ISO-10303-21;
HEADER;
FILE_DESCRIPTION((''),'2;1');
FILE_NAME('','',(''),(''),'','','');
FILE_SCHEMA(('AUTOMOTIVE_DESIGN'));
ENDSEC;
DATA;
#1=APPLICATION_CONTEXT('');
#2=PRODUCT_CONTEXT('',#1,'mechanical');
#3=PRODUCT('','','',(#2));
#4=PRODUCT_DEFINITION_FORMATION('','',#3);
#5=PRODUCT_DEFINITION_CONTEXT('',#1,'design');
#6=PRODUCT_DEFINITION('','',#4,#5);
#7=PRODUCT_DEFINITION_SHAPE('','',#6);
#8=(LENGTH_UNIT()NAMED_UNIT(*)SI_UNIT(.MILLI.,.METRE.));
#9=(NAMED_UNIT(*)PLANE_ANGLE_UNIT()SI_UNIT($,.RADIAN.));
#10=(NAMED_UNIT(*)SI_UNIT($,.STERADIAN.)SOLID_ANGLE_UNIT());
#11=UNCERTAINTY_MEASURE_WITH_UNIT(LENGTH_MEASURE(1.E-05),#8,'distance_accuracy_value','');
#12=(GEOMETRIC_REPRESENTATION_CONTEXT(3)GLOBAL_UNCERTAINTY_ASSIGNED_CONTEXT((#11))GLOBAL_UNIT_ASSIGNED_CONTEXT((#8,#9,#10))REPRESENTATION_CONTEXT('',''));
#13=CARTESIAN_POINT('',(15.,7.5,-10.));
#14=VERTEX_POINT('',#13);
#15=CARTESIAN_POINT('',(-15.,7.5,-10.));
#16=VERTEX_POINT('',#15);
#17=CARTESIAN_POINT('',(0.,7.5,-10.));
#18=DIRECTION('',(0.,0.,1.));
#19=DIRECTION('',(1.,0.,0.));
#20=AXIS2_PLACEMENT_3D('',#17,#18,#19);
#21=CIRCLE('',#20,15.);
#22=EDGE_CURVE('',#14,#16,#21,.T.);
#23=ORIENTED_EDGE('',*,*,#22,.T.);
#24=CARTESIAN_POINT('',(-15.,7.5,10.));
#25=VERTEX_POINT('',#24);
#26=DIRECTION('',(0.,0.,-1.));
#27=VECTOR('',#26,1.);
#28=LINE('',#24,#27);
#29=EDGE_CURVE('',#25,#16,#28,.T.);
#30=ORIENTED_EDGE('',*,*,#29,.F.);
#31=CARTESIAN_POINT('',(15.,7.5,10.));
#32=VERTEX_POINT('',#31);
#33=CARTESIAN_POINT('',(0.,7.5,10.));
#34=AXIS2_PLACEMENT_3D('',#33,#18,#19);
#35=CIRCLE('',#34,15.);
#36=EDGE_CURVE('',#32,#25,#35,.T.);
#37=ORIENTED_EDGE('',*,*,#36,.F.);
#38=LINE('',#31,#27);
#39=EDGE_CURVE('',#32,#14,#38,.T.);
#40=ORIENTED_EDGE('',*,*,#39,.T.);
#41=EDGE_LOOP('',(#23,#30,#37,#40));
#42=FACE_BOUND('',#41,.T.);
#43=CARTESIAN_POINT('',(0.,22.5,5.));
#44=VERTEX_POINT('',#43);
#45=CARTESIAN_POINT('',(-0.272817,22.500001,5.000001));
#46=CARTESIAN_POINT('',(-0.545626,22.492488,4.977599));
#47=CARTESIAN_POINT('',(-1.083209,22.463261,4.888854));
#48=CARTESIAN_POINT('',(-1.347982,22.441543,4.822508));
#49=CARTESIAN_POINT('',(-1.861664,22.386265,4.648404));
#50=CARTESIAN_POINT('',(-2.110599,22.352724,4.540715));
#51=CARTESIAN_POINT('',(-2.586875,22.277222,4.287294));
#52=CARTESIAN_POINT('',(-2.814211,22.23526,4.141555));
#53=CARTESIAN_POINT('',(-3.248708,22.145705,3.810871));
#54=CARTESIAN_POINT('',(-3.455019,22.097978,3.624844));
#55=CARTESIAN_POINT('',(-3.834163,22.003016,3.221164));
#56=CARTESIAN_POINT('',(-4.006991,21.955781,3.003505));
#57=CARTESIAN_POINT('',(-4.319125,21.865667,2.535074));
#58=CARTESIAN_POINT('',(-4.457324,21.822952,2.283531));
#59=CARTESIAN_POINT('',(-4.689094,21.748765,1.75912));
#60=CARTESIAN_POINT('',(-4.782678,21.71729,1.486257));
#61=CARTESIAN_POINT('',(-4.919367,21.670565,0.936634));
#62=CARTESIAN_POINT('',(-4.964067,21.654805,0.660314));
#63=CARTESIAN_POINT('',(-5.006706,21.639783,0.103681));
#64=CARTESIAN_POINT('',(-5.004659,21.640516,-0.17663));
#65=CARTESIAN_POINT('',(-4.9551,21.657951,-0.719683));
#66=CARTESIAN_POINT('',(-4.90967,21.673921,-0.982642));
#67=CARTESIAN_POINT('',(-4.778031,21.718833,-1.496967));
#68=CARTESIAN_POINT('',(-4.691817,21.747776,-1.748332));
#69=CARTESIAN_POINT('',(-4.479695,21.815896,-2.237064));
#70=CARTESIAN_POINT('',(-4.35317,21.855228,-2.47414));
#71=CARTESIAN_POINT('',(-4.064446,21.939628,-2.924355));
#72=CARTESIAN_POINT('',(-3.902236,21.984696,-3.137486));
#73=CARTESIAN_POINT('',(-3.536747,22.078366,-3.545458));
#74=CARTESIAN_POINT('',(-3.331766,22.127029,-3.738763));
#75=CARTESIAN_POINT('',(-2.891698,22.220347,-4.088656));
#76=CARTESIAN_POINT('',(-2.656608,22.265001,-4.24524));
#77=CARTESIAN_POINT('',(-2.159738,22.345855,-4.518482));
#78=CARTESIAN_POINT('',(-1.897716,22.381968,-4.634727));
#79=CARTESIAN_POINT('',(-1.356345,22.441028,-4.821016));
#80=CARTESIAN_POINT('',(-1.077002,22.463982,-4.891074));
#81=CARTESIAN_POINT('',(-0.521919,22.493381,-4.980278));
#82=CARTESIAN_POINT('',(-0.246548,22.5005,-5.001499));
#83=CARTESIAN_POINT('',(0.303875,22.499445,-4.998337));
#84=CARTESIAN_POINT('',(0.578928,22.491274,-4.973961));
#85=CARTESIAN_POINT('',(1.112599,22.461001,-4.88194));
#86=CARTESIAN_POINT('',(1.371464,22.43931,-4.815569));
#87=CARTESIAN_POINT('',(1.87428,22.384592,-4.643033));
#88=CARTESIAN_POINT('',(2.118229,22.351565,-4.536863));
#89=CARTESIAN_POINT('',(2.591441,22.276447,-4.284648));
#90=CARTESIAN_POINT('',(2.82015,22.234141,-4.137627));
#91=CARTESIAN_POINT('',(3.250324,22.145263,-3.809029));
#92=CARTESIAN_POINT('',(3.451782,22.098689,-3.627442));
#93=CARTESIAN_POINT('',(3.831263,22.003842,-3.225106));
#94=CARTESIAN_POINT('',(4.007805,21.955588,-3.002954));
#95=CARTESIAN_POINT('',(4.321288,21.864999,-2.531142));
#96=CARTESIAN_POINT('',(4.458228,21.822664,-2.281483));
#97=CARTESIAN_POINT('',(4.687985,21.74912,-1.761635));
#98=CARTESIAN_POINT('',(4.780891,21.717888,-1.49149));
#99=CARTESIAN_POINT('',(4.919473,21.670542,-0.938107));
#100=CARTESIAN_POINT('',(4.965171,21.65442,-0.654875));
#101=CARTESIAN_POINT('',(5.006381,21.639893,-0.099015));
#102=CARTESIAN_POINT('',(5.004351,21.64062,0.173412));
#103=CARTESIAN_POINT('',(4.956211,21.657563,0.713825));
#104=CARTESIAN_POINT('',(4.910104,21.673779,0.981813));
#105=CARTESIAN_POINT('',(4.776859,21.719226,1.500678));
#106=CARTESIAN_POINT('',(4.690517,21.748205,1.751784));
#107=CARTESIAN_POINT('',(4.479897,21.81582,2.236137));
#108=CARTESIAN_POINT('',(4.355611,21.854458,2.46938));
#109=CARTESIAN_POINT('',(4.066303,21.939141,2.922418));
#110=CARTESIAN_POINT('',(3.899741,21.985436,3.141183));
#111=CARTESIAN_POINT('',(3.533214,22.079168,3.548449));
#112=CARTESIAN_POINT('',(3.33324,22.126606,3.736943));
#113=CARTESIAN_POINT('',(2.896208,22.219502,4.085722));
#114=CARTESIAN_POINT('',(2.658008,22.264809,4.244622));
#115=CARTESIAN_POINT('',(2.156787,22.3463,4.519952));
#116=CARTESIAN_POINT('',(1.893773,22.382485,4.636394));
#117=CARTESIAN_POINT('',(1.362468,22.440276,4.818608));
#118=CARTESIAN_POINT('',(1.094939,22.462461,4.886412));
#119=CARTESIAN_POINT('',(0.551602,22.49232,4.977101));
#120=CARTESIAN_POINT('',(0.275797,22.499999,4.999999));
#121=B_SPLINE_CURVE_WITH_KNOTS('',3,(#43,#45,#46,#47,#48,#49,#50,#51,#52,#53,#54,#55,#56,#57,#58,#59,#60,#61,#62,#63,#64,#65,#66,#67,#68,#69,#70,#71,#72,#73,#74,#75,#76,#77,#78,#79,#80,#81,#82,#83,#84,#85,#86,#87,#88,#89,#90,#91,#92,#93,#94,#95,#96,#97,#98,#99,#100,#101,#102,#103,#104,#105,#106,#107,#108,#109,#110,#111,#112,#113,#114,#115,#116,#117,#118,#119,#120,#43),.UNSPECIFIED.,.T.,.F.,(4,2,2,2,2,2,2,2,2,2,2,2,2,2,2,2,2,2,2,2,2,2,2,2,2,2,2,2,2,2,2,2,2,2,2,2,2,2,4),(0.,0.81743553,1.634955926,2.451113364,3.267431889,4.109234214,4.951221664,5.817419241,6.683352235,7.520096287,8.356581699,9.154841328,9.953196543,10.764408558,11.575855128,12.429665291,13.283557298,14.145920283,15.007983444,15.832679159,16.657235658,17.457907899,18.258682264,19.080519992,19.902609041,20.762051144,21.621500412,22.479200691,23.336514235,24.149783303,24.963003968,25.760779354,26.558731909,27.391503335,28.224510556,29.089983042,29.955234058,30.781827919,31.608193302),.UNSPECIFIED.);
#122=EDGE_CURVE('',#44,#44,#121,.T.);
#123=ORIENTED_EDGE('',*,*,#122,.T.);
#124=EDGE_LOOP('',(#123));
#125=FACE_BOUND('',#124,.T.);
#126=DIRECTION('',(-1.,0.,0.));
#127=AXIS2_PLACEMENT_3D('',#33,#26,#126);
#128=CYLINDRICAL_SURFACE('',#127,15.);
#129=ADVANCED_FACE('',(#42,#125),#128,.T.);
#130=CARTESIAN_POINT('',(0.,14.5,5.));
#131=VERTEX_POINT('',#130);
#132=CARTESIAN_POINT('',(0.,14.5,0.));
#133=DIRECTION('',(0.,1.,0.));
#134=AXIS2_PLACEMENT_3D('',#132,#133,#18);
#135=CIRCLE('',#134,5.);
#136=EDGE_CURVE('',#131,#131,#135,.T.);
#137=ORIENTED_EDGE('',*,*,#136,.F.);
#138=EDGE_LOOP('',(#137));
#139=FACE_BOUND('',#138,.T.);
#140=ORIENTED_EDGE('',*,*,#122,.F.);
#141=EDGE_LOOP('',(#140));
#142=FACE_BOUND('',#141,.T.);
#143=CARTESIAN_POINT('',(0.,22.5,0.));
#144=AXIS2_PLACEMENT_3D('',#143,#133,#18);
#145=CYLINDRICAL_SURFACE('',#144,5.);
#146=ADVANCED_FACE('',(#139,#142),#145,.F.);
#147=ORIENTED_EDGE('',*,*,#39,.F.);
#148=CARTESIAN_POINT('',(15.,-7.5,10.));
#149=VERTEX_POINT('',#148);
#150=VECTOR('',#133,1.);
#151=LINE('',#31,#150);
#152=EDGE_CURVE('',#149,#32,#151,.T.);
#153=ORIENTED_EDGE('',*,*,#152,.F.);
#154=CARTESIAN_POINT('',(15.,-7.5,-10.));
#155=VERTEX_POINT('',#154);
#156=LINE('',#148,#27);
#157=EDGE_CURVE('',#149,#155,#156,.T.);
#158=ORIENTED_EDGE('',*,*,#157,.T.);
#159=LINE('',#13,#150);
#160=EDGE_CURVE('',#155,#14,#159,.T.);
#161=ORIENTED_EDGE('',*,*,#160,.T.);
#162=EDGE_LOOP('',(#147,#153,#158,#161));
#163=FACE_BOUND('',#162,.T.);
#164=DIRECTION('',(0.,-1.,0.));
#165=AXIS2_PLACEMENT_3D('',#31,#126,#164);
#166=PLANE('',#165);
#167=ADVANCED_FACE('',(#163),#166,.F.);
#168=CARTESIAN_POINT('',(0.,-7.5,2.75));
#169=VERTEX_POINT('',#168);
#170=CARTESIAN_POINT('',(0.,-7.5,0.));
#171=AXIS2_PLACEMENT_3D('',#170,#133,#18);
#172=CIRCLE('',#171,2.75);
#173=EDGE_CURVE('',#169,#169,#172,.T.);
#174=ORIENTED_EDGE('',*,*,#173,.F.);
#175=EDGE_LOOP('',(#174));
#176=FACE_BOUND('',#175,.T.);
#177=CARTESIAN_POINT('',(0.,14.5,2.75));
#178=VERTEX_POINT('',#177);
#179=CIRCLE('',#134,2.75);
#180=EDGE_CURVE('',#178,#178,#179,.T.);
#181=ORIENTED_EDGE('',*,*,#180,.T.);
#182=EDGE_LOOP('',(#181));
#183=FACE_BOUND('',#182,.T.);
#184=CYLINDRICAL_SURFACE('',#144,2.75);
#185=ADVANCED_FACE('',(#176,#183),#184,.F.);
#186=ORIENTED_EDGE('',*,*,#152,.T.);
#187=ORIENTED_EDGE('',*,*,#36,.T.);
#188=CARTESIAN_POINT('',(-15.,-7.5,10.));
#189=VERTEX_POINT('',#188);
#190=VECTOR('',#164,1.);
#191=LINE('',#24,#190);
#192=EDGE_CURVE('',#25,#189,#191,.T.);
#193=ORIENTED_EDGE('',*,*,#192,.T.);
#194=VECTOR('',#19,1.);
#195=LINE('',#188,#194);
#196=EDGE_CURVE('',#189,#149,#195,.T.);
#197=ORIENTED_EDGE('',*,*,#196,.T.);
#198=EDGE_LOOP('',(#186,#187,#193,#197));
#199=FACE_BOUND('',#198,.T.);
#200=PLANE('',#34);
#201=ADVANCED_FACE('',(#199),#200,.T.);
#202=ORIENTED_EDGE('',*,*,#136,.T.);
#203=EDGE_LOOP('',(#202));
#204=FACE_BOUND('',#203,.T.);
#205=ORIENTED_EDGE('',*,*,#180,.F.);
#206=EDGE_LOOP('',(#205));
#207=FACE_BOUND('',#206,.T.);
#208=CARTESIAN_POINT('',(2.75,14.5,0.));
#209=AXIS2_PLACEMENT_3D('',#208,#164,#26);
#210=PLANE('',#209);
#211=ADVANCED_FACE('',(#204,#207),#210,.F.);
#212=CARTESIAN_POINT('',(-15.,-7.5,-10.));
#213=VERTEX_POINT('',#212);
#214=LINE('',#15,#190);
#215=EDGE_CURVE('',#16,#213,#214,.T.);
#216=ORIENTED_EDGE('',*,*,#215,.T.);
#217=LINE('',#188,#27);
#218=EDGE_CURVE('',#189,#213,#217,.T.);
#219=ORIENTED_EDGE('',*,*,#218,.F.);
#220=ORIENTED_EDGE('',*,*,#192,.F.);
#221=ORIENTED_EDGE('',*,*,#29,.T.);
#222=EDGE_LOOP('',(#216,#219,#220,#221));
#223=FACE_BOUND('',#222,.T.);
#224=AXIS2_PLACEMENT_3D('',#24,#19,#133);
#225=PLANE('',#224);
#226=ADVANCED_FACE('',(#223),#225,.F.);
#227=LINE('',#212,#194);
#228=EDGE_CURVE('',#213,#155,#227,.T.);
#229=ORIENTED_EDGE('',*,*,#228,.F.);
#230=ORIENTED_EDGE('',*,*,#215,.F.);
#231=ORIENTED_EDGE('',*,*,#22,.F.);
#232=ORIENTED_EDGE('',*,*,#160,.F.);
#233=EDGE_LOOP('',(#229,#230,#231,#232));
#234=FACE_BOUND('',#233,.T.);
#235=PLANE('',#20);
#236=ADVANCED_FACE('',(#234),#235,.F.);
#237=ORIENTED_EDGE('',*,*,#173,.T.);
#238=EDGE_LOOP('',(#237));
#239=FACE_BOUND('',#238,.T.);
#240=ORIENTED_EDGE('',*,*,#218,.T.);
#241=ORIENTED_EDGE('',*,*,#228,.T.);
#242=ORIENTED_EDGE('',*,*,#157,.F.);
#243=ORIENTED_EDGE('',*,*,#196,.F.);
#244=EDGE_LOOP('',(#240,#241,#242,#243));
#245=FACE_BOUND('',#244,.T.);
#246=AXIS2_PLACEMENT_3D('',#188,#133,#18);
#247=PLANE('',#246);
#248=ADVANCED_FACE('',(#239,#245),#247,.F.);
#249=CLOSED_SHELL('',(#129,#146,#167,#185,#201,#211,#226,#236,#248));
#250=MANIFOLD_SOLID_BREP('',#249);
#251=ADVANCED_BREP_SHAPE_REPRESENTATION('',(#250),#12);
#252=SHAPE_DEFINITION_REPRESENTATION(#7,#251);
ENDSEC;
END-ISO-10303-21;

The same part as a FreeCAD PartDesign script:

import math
import FreeCAD as App
import Part
import Sketcher
from FreeCAD import Vector
Q = App.Units.Quantity

doc = App.newDocument("Part")
body = doc.addObject("PartDesign::Body", "Body")

sketch1 = body.newObject("Sketcher::SketchObject", "Sketch")
sketch1.AttachmentSupport = (doc.getObject("XY_Plane"), [""])
sketch1.MapMode = "FlatFace"
sketch1.addGeometry(Part.LineSegment(Vector(-15, 8, 0), Vector(-15, -8, 0)), False)
sketch1.addGeometry(Part.LineSegment(Vector(-15, -8, 0), Vector(15, -8, 0)), False)
sketch1.addGeometry(Part.LineSegment(Vector(15, -8, 0), Vector(15, 8, 0)), False)
sketch1.addGeometry(Part.ArcOfCircle(Part.Circle(Vector(0, 8, 0), Vector(0, 0, 1), 15), math.radians(0), math.radians(180)), False)
sketch1.addConstraint(Sketcher.Constraint("Coincident", 0, 2, 1, 1))
sketch1.addConstraint(Sketcher.Constraint("Coincident", 1, 2, 2, 1))
sketch1.addConstraint(Sketcher.Constraint("Tangent", 2, 2, 3, 1))
sketch1.addConstraint(Sketcher.Constraint("Tangent", 3, 2, 0, 1))
sketch1.addConstraint(Sketcher.Constraint("Vertical", 0))
sketch1.addConstraint(Sketcher.Constraint("Horizontal", 1))
sketch1.addConstraint(Sketcher.Constraint("Vertical", 2))
sketch1.addConstraint(Sketcher.Constraint("Symmetric", 0, 2, 2, 2, -1, 1))
sketch1.addConstraint(Sketcher.Constraint("Radius", 3, Q("15 mm")))
sketch1.addConstraint(Sketcher.Constraint("DistanceY", 0, 2, 0, 1, Q("15 mm")))
pad1 = body.newObject("PartDesign::Pad", "Pad")
pad1.Profile = sketch1
pad1.Length = 20
pad1.Midplane = True

sketch2 = body.newObject("Sketcher::SketchObject", "Sketch001")
sketch2.AttachmentSupport = (doc.getObject("XZ_Plane"), [""])
sketch2.MapMode = "FlatFace"
sketch2.AttachmentOffset = App.Placement(Vector(0, 0, -22.5), App.Rotation())
sketch2.addGeometry(Part.Circle(Vector(0, 0, 0), Vector(0, 0, 1), 2.8), False)
sketch2.addConstraint(Sketcher.Constraint("Coincident", 0, 3, -1, 1))
sketch2.addConstraint(Sketcher.Constraint("Diameter", 0, Q("5.5 mm")))
doc.recompute()
hole = body.newObject("PartDesign::Hole", "Hole")
hole.Profile = sketch2
hole.ThreadType = "None"
hole.Diameter = 5.5
hole.DepthType = "ThroughAll"
hole.HoleCutType = "Counterbore"
hole.HoleCutDiameter = 10
hole.HoleCutDepth = 8
hole.Reversed = True

doc.recompute()
